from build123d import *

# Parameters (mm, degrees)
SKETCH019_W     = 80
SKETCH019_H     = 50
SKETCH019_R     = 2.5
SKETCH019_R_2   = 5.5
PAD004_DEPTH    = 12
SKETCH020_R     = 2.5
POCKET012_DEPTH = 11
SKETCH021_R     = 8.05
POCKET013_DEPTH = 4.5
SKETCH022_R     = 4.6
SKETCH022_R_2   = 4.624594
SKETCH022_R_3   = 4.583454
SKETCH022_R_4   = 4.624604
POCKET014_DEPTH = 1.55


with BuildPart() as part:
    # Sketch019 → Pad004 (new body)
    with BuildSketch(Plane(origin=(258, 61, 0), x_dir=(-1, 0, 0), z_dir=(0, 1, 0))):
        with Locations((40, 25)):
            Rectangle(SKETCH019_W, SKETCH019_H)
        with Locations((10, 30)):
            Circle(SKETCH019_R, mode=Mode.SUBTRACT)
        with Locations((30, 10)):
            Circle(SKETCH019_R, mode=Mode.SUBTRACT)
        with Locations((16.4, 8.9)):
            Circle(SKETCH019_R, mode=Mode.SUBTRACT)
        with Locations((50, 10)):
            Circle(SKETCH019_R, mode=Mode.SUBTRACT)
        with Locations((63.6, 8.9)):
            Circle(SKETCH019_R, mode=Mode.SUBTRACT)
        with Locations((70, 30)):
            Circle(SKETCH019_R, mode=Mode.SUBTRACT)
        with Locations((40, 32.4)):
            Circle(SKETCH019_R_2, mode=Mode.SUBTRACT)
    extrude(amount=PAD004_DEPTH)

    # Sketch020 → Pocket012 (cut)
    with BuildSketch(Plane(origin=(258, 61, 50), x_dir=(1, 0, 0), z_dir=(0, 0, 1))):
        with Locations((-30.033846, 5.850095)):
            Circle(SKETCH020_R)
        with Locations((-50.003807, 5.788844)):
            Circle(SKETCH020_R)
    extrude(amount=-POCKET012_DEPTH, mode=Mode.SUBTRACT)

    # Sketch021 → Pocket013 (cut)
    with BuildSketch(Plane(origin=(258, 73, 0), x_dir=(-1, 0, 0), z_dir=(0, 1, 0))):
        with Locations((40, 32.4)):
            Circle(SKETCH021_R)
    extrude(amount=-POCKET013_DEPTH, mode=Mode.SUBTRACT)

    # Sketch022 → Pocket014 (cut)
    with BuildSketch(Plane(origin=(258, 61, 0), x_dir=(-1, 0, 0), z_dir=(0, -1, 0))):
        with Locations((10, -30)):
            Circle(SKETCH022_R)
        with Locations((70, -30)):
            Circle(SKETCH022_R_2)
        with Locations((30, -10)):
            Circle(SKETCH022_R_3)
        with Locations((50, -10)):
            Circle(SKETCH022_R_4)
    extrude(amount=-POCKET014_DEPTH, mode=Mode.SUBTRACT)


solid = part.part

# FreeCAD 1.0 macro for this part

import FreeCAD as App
import Part
import Sketcher
Q = App.Units.Quantity

doc = App.newDocument("Part")
body = doc.addObject("PartDesign::Body", "Body")

# Sketch on XZ plane
sketch1 = body.newObject("Sketcher::SketchObject", "Sketch")
sketch1.AttachmentSupport = (doc.getObject("XZ_Plane"), [""])
sketch1.MapMode = "FlatFace"
sketch1.AttachmentOffset = App.Placement(App.Vector(0, 0, -61), App.Rotation())
sketch1.addGeometry(Part.LineSegment(App.Vector(258, 50, 0), App.Vector(258, 0, 0)), False)
sketch1.addGeometry(Part.LineSegment(App.Vector(258, 0, 0), App.Vector(178, 0, 0)), False)
sketch1.addGeometry(Part.LineSegment(App.Vector(178, 0, 0), App.Vector(178, 50, 0)), False)
sketch1.addGeometry(Part.LineSegment(App.Vector(178, 50, 0), App.Vector(258, 50, 0)), False)
sketch1.addGeometry(Part.Circle(App.Vector(241.6, 8.9, 0), App.Vector(0, 0, 1), 2.5), False)
sketch1.addGeometry(Part.Circle(App.Vector(228, 10, 0), App.Vector(0, 0, 1), 2.5), False)
sketch1.addGeometry(Part.Circle(App.Vector(208, 10, 0), App.Vector(0, 0, 1), 2.5), False)
sketch1.addGeometry(Part.Circle(App.Vector(194.4, 8.9, 0), App.Vector(0, 0, 1), 2.5), False)
sketch1.addGeometry(Part.Circle(App.Vector(248, 30, 0), App.Vector(0, 0, 1), 2.5), False)
sketch1.addGeometry(Part.Circle(App.Vector(188, 30, 0), App.Vector(0, 0, 1), 2.5), False)
sketch1.addGeometry(Part.Circle(App.Vector(218, 32.4, 0), App.Vector(0, 0, 1), 5.5), False)
sketch1.addConstraint(Sketcher.Constraint("Coincident", 0, 2, 1, 1))
sketch1.addConstraint(Sketcher.Constraint("Coincident", 1, 2, 2, 1))
sketch1.addConstraint(Sketcher.Constraint("Coincident", 2, 2, 3, 1))
sketch1.addConstraint(Sketcher.Constraint("Coincident", 3, 2, 0, 1))
sketch1.addConstraint(Sketcher.Constraint("Vertical", 0))
sketch1.addConstraint(Sketcher.Constraint("Horizontal", 1))
sketch1.addConstraint(Sketcher.Constraint("Vertical", 2))
sketch1.addConstraint(Sketcher.Constraint("Horizontal", 3))
sketch1.addConstraint(Sketcher.Constraint("Equal", 4, 5))
sketch1.addConstraint(Sketcher.Constraint("Equal", 5, 6))
sketch1.addConstraint(Sketcher.Constraint("Equal", 6, 7))
sketch1.addConstraint(Sketcher.Constraint("Equal", 7, 8))
sketch1.addConstraint(Sketcher.Constraint("Equal", 8, 9))
sketch1.addConstraint(Sketcher.Constraint("PointOnObject", 0, 2, -1))
sketch1.addConstraint(Sketcher.Constraint("Horizontal", 5, 3, 6, 3))
sketch1.addConstraint(Sketcher.Constraint("Horizontal", 4, 3, 7, 3))
sketch1.addConstraint(Sketcher.Constraint("Horizontal", 8, 3, 9, 3))
sketch1.addConstraint(Sketcher.Constraint("Diameter", 4, Q("5 mm")))
sketch1.addConstraint(Sketcher.Constraint("Diameter", 10, Q("11 mm")))
sketch1.addConstraint(Sketcher.Constraint("DistanceX", 1, 2, 1, 1, Q("80 mm")))
sketch1.addConstraint(Sketcher.Constraint("DistanceY", 0, 2, 0, 1, Q("50 mm")))
sketch1.addConstraint(Sketcher.Constraint("DistanceX", -1, 1, 5, 3, Q("228 mm")))
sketch1.addConstraint(Sketcher.Constraint("DistanceY", -1, 1, 5, 3, Q("10 mm")))
sketch1.addConstraint(Sketcher.Constraint("DistanceX", -1, 1, 6, 3, Q("208 mm")))
sketch1.addConstraint(Sketcher.Constraint("DistanceX", -1, 1, 8, 3, Q("248 mm")))
sketch1.addConstraint(Sketcher.Constraint("DistanceY", -1, 1, 8, 3, Q("30 mm")))
sketch1.addConstraint(Sketcher.Constraint("DistanceX", -1, 1, 9, 3, Q("188 mm")))
sketch1.addConstraint(Sketcher.Constraint("DistanceX", -1, 1, 10, 3, Q("218 mm")))
sketch1.addConstraint(Sketcher.Constraint("DistanceX", -1, 1, 0, 2, Q("258 mm")))
sketch1.addConstraint(Sketcher.Constraint("DistanceX", -1, 1, 4, 3, Q("241.6 mm")))
sketch1.addConstraint(Sketcher.Constraint("DistanceY", -1, 1, 4, 3, Q("8.9 mm")))
sketch1.addConstraint(Sketcher.Constraint("DistanceX", -1, 1, 7, 3, Q("194.4 mm")))
sketch1.addConstraint(Sketcher.Constraint("DistanceY", -1, 1, 10, 3, Q("32.4 mm")))
pad1 = body.newObject("PartDesign::Pad", "Pad")
pad1.Profile = sketch1
pad1.Length = 12
pad1.Reversed = True

# Sketch on XY plane
sketch2 = body.newObject("Sketcher::SketchObject", "Sketch001")
sketch2.AttachmentSupport = (doc.getObject("XY_Plane"), [""])
sketch2.MapMode = "FlatFace"
sketch2.AttachmentOffset = App.Placement(App.Vector(0, 0, 50), App.Rotation())
sketch2.addGeometry(Part.Circle(App.Vector(227.966154, 66.850095, 0), App.Vector(0, 0, 1), 2.5), False)
sketch2.addGeometry(Part.Circle(App.Vector(207.996193, 66.788844, 0), App.Vector(0, 0, 1), 2.5), False)
sketch2.addConstraint(Sketcher.Constraint("Equal", 0, 1))
sketch2.addConstraint(Sketcher.Constraint("Diameter", 0, Q("5 mm")))
sketch2.addConstraint(Sketcher.Constraint("DistanceX", 1, 3, 0, 3, Q("19.969961 mm")))
sketch2.addConstraint(Sketcher.Constraint("DistanceY", 1, 3, 0, 3, Q("0.061251 mm")))
sketch2.addConstraint(Sketcher.Constraint("DistanceX", -1, 1, 0, 3, Q("227.966154 mm")))
sketch2.addConstraint(Sketcher.Constraint("DistanceY", -1, 1, 0, 3, Q("66.850095 mm")))
pocket1 = body.newObject("PartDesign::Pocket", "Pocket")
pocket1.Profile = sketch2
pocket1.Length = 11

# Sketch on XZ plane
sketch3 = body.newObject("Sketcher::SketchObject", "Sketch002")
sketch3.AttachmentSupport = (doc.getObject("XZ_Plane"), [""])
sketch3.MapMode = "FlatFace"
sketch3.AttachmentOffset = App.Placement(App.Vector(0, 0, -73), App.Rotation())
sketch3.addGeometry(Part.Circle(App.Vector(218, 32.4, 0), App.Vector(0, 0, 1), 8.05), False)
sketch3.addConstraint(Sketcher.Constraint("Diameter", 0, Q("16.1 mm")))
sketch3.addConstraint(Sketcher.Constraint("DistanceX", -1, 1, 0, 3, Q("218 mm")))
sketch3.addConstraint(Sketcher.Constraint("DistanceY", -1, 1, 0, 3, Q("32.4 mm")))
pocket2 = body.newObject("PartDesign::Pocket", "Pocket001")
pocket2.Profile = sketch3
pocket2.Length = 4.5
pocket2.Reversed = True

# Sketch on XZ plane
sketch4 = body.newObject("Sketcher::SketchObject", "Sketch003")
sketch4.AttachmentSupport = (doc.getObject("XZ_Plane"), [""])
sketch4.MapMode = "FlatFace"
sketch4.AttachmentOffset = App.Placement(App.Vector(0, 0, -61), App.Rotation())
sketch4.addGeometry(Part.Circle(App.Vector(248, 30, 0), App.Vector(0, 0, 1), 4.6), False)
sketch4.addGeometry(Part.Circle(App.Vector(188, 30, 0), App.Vector(0, 0, 1), 4.624594), False)
sketch4.addGeometry(Part.Circle(App.Vector(228, 10, 0), App.Vector(0, 0, 1), 4.583454), False)
sketch4.addGeometry(Part.Circle(App.Vector(208, 10, 0), App.Vector(0, 0, 1), 4.624604), False)
sketch4.addConstraint(Sketcher.Constraint("Horizontal", 0, 3, 1, 3))
sketch4.addConstraint(Sketcher.Constraint("Horizontal", 2, 3, 3, 3))
sketch4.addConstraint(Sketcher.Constraint("Diameter", 0, Q("9.2 mm")))
sketch4.addConstraint(Sketcher.Constraint("DistanceX", -1, 1, 0, 3, Q("248 mm")))
sketch4.addConstraint(Sketcher.Constraint("DistanceY", -1, 1, 0, 3, Q("30 mm")))
sketch4.addConstraint(Sketcher.Constraint("DistanceX", -1, 1, 1, 3, Q("188 mm")))
sketch4.addConstraint(Sketcher.Constraint("DistanceX", -1, 1, 2, 3, Q("228 mm")))
sketch4.addConstraint(Sketcher.Constraint("DistanceY", -1, 1, 2, 3, Q("10 mm")))
sketch4.addConstraint(Sketcher.Constraint("DistanceX", -1, 1, 3, 3, Q("208 mm")))
sketch4.addConstraint(Sketcher.Constraint("Diameter", 1, Q("9.249188 mm")))
sketch4.addConstraint(Sketcher.Constraint("Diameter", 2, Q("9.166908 mm")))
sketch4.addConstraint(Sketcher.Constraint("Diameter", 3, Q("9.249208 mm")))
pocket3 = body.newObject("PartDesign::Pocket", "Pocket002")
pocket3.Profile = sketch4
pocket3.Length = 1.55

doc.recompute()
